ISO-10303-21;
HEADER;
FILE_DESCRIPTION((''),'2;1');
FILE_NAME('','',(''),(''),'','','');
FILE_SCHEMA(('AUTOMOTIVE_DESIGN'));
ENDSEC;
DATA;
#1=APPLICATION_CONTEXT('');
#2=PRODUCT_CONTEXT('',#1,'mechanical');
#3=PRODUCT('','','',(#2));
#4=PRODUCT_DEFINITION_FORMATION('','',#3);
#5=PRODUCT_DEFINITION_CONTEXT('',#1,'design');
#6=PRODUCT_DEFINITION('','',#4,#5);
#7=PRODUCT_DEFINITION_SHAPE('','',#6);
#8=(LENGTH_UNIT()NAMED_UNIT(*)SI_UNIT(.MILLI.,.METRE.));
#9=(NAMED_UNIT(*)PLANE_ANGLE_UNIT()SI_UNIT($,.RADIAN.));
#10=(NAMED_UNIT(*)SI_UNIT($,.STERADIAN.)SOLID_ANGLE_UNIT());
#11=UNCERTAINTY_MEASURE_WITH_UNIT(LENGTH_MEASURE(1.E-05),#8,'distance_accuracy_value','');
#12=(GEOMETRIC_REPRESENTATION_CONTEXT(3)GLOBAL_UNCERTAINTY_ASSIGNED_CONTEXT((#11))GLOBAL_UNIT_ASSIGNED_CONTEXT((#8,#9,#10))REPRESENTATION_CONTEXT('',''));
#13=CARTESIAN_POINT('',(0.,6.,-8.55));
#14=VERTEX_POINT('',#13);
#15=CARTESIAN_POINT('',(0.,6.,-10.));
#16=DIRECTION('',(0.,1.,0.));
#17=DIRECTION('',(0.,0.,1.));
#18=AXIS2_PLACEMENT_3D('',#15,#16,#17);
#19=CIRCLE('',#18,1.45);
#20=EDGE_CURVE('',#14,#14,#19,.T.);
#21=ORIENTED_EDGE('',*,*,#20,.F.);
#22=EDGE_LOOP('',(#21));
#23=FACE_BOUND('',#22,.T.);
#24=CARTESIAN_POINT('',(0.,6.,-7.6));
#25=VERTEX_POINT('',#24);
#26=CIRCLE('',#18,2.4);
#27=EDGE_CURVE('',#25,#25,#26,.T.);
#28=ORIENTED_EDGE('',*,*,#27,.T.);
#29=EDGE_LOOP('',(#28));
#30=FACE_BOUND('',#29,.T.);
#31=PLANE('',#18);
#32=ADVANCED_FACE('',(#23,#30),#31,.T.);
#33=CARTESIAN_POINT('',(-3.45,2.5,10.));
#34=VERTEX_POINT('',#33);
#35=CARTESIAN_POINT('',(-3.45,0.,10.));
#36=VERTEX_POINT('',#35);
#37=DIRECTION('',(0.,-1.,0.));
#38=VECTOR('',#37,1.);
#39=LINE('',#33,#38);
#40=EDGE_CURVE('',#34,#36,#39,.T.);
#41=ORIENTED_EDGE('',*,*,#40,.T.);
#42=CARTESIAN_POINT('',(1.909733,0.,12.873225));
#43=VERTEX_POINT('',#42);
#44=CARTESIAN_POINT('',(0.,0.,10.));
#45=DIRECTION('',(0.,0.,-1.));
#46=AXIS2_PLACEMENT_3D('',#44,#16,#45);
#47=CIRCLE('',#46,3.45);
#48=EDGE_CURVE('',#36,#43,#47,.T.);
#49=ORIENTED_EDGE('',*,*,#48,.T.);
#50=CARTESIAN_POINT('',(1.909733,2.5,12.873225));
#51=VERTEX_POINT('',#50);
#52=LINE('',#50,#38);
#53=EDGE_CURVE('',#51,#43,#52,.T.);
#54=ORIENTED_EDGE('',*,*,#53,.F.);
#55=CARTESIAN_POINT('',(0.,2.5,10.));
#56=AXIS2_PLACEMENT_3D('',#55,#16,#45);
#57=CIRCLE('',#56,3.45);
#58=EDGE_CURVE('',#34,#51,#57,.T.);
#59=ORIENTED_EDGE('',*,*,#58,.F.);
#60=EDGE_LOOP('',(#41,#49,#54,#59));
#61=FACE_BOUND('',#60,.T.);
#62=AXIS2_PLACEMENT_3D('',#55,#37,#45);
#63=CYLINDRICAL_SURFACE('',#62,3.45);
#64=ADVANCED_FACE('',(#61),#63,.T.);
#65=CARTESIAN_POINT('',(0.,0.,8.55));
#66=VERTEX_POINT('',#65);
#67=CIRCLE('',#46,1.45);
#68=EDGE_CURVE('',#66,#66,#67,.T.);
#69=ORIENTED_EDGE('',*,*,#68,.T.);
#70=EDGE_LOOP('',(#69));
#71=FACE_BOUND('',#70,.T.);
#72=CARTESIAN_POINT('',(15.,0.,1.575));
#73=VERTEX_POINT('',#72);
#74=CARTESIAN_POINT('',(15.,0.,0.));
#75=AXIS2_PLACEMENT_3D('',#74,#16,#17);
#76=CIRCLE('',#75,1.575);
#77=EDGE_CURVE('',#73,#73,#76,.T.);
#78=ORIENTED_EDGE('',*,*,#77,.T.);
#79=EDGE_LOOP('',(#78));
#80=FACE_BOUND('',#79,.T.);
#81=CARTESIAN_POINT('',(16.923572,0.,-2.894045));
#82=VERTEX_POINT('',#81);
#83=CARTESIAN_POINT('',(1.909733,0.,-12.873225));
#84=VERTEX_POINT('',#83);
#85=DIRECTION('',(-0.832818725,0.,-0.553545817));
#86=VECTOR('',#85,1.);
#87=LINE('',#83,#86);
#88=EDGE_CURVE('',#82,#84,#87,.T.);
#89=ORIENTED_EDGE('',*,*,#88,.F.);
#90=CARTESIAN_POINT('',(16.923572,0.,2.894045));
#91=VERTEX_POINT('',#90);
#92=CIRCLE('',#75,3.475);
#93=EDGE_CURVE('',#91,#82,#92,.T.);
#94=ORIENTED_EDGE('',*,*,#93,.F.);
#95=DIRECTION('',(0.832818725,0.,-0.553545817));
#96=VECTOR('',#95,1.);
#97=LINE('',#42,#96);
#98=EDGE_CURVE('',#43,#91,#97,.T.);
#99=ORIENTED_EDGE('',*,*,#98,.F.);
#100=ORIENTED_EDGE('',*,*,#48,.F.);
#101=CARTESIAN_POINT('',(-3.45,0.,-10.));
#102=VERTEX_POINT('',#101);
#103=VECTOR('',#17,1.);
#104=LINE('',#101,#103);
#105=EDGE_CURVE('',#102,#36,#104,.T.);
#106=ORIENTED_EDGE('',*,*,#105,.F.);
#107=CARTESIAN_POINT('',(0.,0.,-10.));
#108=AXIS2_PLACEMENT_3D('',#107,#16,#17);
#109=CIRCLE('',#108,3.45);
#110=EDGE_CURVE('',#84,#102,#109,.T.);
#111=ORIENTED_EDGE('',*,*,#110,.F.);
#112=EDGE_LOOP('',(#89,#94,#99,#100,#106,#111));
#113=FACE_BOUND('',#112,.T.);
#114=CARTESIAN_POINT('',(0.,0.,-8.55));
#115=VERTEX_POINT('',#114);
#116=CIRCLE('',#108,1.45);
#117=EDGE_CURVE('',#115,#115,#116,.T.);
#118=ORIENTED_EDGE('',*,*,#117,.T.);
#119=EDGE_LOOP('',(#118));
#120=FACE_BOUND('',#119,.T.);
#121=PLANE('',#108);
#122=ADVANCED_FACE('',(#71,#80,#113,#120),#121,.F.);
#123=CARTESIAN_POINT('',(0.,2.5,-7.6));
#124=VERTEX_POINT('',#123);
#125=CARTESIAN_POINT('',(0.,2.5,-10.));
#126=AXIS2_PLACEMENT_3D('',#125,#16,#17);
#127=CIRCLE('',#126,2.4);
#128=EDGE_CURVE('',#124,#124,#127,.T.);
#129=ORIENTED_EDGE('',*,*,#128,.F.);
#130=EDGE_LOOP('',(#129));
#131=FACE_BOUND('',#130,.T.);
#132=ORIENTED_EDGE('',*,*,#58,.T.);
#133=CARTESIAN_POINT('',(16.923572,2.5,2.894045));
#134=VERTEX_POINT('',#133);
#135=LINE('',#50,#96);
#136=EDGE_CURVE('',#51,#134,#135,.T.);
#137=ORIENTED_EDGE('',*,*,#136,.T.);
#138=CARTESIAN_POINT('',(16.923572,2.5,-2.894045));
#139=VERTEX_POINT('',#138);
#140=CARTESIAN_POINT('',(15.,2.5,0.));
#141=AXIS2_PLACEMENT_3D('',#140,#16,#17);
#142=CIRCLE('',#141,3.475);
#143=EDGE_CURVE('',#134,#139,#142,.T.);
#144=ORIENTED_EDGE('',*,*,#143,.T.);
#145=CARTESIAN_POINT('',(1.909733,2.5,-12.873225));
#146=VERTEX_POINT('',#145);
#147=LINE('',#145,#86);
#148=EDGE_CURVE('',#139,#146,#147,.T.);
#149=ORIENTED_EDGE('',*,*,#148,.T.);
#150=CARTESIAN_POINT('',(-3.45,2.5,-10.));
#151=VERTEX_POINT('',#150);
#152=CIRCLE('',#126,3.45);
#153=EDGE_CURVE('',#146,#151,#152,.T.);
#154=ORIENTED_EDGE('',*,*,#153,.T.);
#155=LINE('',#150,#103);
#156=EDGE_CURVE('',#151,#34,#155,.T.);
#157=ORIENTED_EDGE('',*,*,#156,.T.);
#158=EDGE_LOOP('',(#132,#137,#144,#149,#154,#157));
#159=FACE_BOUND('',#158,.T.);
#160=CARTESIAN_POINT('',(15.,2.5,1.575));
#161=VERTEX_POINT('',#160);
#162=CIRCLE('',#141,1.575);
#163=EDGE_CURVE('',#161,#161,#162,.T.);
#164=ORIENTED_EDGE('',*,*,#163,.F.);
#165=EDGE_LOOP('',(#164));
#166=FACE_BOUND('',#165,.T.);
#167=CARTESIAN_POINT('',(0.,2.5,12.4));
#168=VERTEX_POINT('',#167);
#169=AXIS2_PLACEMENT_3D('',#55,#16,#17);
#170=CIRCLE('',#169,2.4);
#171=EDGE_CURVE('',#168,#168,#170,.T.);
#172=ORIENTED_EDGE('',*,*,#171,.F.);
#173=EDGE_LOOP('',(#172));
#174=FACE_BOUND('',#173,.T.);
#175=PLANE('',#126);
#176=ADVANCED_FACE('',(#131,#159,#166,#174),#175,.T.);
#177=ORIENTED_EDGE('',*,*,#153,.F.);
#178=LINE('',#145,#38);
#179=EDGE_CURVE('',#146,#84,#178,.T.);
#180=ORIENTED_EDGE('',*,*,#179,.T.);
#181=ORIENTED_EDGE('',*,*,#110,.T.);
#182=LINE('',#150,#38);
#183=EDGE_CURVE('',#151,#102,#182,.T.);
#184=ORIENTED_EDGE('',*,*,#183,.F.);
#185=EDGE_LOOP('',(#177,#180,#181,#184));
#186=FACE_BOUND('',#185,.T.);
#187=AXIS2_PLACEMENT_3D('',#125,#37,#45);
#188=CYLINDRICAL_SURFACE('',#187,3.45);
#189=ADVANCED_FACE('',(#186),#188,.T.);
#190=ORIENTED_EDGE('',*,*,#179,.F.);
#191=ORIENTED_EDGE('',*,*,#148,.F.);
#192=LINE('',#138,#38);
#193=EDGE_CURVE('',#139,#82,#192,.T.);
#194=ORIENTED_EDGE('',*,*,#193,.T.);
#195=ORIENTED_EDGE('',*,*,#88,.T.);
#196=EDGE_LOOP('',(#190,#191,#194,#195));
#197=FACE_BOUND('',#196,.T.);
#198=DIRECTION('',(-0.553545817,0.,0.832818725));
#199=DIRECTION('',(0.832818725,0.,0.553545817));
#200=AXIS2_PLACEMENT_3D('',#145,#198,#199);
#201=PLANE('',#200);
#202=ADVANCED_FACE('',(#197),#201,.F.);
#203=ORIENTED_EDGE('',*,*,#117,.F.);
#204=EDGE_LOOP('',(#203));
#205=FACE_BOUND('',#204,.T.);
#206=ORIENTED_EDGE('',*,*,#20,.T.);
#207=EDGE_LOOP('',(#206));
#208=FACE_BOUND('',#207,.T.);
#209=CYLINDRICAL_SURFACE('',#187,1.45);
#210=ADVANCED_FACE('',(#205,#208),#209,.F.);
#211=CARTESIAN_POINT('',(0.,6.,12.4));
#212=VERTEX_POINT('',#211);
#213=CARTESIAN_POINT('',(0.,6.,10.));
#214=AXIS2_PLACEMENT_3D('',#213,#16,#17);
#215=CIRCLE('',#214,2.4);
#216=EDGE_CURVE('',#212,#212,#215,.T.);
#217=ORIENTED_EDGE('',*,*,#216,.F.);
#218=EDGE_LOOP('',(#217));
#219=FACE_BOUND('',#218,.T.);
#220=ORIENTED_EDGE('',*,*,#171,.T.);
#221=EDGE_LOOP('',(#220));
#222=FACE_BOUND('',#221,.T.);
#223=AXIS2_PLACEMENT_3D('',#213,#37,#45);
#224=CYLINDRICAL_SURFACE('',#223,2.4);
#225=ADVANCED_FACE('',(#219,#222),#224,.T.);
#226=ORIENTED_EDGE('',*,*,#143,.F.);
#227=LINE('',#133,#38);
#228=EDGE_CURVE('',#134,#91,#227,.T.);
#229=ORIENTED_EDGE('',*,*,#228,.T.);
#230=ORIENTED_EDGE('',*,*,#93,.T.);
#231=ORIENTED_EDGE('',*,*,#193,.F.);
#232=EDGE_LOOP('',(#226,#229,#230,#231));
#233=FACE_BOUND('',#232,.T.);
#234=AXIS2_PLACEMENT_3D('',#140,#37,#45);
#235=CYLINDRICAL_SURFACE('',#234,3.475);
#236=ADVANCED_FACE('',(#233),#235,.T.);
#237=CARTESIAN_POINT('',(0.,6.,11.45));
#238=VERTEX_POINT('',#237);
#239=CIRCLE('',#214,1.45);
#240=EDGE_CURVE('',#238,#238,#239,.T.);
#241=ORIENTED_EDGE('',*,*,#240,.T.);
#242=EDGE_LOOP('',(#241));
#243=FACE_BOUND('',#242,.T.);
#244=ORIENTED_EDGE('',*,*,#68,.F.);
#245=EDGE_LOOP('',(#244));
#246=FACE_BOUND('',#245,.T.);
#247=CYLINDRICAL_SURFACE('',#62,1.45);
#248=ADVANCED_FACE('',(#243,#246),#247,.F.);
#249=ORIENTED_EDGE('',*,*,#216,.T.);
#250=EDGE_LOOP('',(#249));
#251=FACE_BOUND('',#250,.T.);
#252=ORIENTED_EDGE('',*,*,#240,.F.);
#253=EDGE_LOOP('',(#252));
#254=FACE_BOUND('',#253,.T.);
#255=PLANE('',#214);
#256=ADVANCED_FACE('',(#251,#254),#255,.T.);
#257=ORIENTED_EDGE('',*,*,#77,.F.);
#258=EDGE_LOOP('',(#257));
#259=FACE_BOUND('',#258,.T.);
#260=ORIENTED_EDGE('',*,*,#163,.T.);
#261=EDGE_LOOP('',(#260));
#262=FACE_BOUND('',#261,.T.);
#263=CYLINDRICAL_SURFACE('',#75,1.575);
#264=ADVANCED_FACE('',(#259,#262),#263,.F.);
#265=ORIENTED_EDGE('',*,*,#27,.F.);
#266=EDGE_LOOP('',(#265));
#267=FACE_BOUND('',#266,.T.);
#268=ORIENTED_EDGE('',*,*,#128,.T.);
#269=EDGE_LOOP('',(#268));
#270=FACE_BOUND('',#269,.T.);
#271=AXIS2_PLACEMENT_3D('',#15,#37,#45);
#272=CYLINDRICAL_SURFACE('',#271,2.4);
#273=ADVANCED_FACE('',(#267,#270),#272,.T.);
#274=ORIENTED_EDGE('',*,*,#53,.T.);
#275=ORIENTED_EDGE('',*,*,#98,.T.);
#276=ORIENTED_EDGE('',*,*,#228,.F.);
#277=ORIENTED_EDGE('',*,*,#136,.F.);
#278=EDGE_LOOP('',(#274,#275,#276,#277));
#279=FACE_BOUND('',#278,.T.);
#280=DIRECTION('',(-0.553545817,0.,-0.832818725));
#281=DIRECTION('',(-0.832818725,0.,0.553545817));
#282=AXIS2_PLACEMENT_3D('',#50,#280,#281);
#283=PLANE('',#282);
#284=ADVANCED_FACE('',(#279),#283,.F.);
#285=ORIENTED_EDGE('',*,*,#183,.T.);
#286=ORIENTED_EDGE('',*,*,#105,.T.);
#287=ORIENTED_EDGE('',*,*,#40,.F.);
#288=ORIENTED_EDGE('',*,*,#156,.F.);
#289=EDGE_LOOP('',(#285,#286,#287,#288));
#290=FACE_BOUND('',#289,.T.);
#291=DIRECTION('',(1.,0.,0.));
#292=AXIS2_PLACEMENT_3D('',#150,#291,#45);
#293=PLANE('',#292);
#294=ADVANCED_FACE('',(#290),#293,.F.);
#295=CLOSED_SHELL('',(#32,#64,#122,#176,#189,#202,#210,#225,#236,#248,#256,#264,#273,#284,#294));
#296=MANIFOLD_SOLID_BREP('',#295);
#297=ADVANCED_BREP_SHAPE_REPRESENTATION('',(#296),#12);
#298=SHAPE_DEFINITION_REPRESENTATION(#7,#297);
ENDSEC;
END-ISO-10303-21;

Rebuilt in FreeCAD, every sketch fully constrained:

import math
import FreeCAD as App
import Part
import Sketcher
from FreeCAD import Vector

doc = App.newDocument("Part")
body = doc.addObject("PartDesign::Body", "Body")

sketch1 = body.newObject("Sketcher::SketchObject", "Sketch")
sketch1.AttachmentSupport = (doc.getObject("XZ_Plane"), [""])
sketch1.MapMode = "FlatFace"
sketch1.addGeometry([
    Part.LineSegment(Vector(-3.5, -10, 0), Vector(-3.5, 10, 0)),
    Part.ArcOfCircle(Part.Circle(Vector(0, 10, 0), Vector(0, 0, 1), 3.5), math.radians(56), math.radians(180)),
    Part.LineSegment(Vector(1.9, 12.9, 0), Vector(16.9, 2.9, 0)),
    Part.ArcOfCircle(Part.Circle(Vector(15, 0, 0), Vector(0, 0, 1), 3.5), math.radians(-56), math.radians(56)),
    Part.LineSegment(Vector(16.9, -2.9, 0), Vector(1.9, -12.9, 0)),
    Part.ArcOfCircle(Part.Circle(Vector(0, -10, 0), Vector(0, 0, 1), 3.5), math.radians(180), math.radians(304)),
    Part.Circle(Vector(0, 10, 0), Vector(0, 0, 1), 1.4),
    Part.Circle(Vector(0, -10, 0), Vector(0, 0, 1), 1.4),
], False)
sketch1.addConstraint([
    Sketcher.Constraint("Tangent", 0, 2, 1, 2),
    Sketcher.Constraint("Tangent", 1, 1, 2, 1),
    Sketcher.Constraint("Tangent", 2, 2, 3, 2),
    Sketcher.Constraint("Tangent", 3, 1, 4, 1),
    Sketcher.Constraint("Tangent", 4, 2, 5, 2),
    Sketcher.Constraint("Tangent", 5, 1, 0, 1),
    Sketcher.Constraint("Vertical", 0),
    Sketcher.Constraint("Coincident", 6, 3, 1, 3),
    Sketcher.Constraint("Coincident", 7, 3, 5, 3),
    Sketcher.Constraint("Equal", 1, 5),
    Sketcher.Constraint("Equal", 6, 7),
    Sketcher.Constraint("Symmetric", 1, 3, 5, 3, -1, 1),
    Sketcher.Constraint("PointOnObject", 3, 3, -1),
    Sketcher.Constraint("Diameter", 6, 2.9),
    Sketcher.Constraint("DistanceY", 0, 1, 0, 2, 20.0),
    Sketcher.Constraint("Radius", 1, 3.45),
    Sketcher.Constraint("DistanceX", -1, 1, 3, 3, 15.0),
    Sketcher.Constraint("Radius", 3, 3.475),
])
pad1 = body.newObject("PartDesign::Pad", "Pad")
pad1.Profile = sketch1
pad1.Length = 2.5
pad1.Reversed = True

sketch2 = body.newObject("Sketcher::SketchObject", "Sketch001")
sketch2.AttachmentSupport = (doc.getObject("XZ_Plane"), [""])
sketch2.MapMode = "FlatFace"
sketch2.AttachmentOffset = App.Placement(Vector(0, 0, -2.5), App.Rotation())
sketch2.addGeometry([
    Part.Circle(Vector(0, -10, 0), Vector(0, 0, 1), 2.4),
    Part.Circle(Vector(0, -10, 0), Vector(0, 0, 1), 1.4),
    Part.Circle(Vector(0, 10, 0), Vector(0, 0, 1), 2.4),
    Part.Circle(Vector(0, 10, 0), Vector(0, 0, 1), 1.4),
], False)
sketch2.addConstraint([
    Sketcher.Constraint("Coincident", 1, 3, 0, 3),
    Sketcher.Constraint("Coincident", 3, 3, 2, 3),
    Sketcher.Constraint("Equal", 0, 2),
    Sketcher.Constraint("Equal", 1, 3),
    Sketcher.Constraint("Symmetric", 0, 3, 2, 3, -1, 1),
    Sketcher.Constraint("PointOnObject", 0, 3, -2),
    Sketcher.Constraint("Diameter", 0, 4.8),
    Sketcher.Constraint("Diameter", 1, 2.9),
    Sketcher.Constraint("DistanceY", 0, 3, -1, 1, 10.0),
])
pad2 = body.newObject("PartDesign::Pad", "Pad001")
pad2.Profile = sketch2
pad2.Length = 3.5
pad2.Reversed = True

sketch3 = body.newObject("Sketcher::SketchObject", "Sketch002")
sketch3.AttachmentSupport = (doc.getObject("XZ_Plane"), [""])
sketch3.MapMode = "FlatFace"
sketch3.AttachmentOffset = App.Placement(Vector(0, 0, -2.5), App.Rotation())
sketch3.addGeometry(Part.Circle(Vector(15, 0, 0), Vector(0, 0, 1), 1.6), False)
sketch3.addConstraint([
    Sketcher.Constraint("PointOnObject", 0, 3, -1),
    Sketcher.Constraint("Diameter", 0, 3.15),
    Sketcher.Constraint("DistanceX", -1, 1, 0, 3, 15.0),
])
pocket1 = body.newObject("PartDesign::Pocket", "Pocket")
pocket1.Profile = sketch3
pocket1.Type = "ThroughAll"
pocket1.Reversed = True

doc.recompute()
